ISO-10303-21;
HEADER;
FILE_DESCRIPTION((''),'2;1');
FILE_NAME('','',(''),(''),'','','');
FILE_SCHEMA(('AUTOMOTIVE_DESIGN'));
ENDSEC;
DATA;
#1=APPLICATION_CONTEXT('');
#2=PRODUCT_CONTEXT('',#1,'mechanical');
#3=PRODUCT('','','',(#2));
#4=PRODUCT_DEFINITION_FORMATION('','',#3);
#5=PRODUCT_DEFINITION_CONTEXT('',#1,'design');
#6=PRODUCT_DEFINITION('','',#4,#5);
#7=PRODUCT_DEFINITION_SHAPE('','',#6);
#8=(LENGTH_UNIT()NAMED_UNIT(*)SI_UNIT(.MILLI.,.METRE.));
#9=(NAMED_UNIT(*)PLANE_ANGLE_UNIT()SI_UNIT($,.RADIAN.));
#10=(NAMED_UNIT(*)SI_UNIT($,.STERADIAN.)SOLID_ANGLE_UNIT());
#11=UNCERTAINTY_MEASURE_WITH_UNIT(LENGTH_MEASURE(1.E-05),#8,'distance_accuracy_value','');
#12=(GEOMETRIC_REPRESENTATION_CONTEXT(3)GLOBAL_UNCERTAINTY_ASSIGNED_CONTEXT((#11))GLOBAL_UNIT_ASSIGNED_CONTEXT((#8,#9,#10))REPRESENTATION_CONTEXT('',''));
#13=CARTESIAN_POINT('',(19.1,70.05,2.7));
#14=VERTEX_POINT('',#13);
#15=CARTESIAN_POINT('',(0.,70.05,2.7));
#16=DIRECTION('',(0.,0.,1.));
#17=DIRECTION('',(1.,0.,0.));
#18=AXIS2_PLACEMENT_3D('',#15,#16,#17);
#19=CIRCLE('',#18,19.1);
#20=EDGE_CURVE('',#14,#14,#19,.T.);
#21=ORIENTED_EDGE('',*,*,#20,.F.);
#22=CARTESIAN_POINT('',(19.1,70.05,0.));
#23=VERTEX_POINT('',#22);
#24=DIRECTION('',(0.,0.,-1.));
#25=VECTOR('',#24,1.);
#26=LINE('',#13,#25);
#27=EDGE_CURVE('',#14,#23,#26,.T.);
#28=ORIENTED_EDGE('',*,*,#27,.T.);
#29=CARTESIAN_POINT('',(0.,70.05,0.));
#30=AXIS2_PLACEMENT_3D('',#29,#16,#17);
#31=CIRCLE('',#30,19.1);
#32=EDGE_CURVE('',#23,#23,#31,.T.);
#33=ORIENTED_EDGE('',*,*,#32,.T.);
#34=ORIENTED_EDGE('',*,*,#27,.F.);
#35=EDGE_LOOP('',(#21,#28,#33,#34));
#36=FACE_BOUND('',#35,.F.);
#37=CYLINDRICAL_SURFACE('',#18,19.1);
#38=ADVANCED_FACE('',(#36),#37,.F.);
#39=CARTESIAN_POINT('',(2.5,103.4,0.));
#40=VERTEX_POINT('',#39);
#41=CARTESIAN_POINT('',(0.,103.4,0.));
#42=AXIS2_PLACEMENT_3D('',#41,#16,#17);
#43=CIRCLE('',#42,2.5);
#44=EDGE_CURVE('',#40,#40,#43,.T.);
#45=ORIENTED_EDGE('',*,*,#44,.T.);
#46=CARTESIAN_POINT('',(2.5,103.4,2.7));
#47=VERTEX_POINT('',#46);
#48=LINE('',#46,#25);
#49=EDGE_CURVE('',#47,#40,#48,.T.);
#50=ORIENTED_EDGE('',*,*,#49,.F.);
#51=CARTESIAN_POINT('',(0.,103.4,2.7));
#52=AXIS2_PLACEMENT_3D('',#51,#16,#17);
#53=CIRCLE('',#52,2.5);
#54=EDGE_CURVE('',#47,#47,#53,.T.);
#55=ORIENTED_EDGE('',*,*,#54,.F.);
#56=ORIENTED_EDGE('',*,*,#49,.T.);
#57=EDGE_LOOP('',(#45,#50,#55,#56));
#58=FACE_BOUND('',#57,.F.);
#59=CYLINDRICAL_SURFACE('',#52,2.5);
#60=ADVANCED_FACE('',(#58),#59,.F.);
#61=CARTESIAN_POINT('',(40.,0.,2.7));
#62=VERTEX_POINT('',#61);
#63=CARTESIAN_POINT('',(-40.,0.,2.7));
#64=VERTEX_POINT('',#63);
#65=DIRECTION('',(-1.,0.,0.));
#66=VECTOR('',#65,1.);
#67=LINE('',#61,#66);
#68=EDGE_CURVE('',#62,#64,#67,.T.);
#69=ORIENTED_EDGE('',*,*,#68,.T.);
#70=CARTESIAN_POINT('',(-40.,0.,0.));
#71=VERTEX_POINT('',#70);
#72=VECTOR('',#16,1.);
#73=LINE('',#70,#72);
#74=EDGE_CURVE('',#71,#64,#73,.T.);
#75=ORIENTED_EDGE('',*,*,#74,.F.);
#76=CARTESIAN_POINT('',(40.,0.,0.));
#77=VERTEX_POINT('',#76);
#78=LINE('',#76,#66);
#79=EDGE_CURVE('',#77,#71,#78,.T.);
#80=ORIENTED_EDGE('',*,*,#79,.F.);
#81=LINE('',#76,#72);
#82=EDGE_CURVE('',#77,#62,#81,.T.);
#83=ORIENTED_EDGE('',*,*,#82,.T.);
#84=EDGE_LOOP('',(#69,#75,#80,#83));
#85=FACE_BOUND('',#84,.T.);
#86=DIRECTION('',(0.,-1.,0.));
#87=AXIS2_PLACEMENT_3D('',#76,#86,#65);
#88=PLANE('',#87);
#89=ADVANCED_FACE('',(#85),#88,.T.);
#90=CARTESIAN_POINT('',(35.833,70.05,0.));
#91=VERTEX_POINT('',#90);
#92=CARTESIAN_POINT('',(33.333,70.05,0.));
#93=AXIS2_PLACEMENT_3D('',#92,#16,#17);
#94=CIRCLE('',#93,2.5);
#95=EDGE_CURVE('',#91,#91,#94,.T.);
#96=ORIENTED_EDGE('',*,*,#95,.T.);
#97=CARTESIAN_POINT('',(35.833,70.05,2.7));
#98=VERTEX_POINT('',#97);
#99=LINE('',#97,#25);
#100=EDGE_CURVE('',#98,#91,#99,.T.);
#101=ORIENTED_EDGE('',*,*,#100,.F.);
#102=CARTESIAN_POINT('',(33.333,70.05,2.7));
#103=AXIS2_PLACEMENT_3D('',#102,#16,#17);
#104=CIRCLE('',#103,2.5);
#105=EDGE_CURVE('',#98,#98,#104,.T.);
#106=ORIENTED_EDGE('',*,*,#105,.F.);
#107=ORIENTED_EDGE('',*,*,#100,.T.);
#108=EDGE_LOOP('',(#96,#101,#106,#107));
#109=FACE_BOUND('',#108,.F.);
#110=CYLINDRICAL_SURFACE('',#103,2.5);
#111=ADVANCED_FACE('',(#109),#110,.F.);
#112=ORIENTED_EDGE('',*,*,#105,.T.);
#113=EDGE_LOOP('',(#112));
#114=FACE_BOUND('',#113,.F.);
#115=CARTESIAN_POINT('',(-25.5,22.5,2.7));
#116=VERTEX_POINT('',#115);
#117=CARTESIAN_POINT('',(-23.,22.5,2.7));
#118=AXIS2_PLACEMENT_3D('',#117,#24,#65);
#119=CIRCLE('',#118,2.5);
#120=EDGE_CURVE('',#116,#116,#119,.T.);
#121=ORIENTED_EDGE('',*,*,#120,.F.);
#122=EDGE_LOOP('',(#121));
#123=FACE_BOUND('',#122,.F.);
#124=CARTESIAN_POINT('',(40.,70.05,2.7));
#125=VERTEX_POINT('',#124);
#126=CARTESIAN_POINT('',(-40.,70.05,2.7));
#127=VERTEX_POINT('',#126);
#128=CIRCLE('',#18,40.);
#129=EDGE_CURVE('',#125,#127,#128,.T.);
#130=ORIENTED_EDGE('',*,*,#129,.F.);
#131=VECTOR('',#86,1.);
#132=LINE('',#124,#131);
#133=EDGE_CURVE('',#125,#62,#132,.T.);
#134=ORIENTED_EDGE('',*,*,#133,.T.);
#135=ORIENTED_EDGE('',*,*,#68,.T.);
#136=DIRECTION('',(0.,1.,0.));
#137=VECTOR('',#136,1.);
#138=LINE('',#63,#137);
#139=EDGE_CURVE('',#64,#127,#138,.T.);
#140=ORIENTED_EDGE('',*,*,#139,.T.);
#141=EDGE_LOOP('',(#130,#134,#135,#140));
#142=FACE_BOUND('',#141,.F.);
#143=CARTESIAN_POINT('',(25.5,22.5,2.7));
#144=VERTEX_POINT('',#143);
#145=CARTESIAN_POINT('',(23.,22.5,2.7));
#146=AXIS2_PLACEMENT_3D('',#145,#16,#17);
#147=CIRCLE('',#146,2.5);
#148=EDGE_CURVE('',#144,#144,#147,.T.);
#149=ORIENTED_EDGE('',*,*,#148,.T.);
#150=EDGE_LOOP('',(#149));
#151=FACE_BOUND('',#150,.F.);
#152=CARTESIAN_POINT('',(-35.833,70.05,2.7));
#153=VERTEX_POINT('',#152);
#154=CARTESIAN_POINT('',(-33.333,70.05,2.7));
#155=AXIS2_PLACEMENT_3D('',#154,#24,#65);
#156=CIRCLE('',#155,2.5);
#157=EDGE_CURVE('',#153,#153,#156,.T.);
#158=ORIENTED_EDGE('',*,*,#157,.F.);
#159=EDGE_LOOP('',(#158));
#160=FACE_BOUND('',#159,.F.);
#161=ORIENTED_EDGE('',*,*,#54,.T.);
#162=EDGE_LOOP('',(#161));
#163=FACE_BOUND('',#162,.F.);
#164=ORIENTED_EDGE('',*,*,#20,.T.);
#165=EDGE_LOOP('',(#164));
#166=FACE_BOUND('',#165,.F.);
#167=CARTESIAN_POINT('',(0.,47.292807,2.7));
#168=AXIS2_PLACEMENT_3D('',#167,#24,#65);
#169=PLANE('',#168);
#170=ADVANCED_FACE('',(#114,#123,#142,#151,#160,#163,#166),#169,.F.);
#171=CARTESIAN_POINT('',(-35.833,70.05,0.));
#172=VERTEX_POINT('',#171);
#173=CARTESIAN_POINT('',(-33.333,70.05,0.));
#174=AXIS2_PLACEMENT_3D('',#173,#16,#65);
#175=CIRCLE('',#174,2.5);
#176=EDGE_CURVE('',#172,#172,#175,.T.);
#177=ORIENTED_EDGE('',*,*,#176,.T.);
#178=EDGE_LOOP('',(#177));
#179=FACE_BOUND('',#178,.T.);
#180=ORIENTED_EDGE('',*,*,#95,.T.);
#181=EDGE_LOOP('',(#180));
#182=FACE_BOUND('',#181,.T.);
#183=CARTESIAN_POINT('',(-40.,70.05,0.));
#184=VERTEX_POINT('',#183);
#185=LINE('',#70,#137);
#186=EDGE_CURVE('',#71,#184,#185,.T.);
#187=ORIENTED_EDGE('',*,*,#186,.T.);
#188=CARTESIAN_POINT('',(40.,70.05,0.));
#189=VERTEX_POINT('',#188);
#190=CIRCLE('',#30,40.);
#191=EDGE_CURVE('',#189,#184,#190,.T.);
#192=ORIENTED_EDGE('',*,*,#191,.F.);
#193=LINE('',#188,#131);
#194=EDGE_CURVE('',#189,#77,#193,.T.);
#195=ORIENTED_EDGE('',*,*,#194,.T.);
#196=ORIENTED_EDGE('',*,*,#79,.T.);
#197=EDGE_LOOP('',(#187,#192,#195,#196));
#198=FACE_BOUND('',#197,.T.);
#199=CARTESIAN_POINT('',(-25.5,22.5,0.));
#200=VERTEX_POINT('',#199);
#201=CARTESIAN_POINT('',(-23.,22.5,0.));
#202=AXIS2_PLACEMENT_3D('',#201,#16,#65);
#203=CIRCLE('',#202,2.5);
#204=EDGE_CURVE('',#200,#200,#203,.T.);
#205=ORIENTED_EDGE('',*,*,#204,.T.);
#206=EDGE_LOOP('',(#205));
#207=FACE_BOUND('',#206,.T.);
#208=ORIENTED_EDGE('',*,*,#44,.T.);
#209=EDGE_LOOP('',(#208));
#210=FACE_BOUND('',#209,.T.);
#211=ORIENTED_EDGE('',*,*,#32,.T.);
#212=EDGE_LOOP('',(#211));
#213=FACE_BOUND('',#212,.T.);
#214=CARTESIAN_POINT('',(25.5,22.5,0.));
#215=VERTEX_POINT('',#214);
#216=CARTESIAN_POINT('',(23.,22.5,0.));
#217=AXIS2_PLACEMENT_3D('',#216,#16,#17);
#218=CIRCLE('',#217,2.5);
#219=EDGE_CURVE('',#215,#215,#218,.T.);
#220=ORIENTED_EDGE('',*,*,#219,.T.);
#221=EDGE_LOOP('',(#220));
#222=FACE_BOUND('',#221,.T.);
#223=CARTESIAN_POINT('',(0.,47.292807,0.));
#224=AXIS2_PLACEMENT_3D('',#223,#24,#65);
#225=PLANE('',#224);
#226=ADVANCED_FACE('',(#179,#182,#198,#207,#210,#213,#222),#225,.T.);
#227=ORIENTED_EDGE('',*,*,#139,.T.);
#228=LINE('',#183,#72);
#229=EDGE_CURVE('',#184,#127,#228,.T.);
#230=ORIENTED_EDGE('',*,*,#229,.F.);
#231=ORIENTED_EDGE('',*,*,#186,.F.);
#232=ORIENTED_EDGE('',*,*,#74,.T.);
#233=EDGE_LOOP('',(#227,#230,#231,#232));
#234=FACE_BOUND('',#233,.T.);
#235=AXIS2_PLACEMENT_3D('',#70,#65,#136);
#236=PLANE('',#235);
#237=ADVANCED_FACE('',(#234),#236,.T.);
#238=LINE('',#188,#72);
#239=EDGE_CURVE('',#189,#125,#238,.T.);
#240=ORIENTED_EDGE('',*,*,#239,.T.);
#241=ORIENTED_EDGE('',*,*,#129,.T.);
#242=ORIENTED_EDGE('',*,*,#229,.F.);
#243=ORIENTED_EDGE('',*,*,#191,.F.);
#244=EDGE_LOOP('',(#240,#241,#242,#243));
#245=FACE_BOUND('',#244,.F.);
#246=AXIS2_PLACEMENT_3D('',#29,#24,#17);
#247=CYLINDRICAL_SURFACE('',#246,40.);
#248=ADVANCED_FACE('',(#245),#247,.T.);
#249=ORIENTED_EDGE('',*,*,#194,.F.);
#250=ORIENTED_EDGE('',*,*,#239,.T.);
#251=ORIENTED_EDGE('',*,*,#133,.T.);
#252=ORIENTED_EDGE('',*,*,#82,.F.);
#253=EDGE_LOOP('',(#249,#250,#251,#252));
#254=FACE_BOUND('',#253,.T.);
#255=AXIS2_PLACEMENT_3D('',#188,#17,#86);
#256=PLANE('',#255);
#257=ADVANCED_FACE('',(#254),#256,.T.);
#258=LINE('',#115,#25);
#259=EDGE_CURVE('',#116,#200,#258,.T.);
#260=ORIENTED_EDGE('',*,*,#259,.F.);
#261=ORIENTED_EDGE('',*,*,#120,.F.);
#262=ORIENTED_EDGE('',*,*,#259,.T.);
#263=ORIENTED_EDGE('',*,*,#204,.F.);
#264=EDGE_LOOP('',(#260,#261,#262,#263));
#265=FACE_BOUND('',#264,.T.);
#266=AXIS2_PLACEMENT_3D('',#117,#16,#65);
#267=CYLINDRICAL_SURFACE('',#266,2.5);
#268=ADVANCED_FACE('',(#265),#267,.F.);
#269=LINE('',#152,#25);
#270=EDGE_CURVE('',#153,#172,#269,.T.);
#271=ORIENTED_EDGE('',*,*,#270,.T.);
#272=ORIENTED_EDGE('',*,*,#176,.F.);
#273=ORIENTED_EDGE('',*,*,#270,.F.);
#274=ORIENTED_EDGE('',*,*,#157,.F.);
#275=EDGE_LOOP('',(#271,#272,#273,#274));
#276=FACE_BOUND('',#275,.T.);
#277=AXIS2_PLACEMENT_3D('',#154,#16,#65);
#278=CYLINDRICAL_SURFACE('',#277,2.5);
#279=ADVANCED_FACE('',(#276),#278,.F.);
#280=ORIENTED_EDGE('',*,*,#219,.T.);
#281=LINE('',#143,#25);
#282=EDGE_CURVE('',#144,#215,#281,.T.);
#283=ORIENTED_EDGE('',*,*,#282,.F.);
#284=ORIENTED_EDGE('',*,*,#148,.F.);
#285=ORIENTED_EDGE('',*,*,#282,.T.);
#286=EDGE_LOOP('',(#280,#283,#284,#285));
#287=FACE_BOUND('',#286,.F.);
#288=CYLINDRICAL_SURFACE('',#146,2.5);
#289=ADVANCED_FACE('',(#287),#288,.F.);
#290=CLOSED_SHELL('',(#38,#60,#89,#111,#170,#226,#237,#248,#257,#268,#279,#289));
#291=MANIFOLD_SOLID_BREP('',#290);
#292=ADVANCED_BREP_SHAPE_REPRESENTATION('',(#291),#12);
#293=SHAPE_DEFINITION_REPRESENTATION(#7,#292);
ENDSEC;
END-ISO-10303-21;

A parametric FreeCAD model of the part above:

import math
import FreeCAD as App
import Part
import Sketcher
from FreeCAD import Vector

doc = App.newDocument("Part")
body = doc.addObject("PartDesign::Body", "Body")

sketch1 = body.newObject("Sketcher::SketchObject", "Sketch")
sketch1.AttachmentSupport = (doc.getObject("XY_Plane"), [""])
sketch1.MapMode = "FlatFace"
sketch1.addGeometry(Part.LineSegment(Vector(40, 0, 0), Vector(40, 70, 0)), False)
sketch1.addGeometry(Part.ArcOfCircle(Part.Circle(Vector(0, 70, 0), Vector(0, 0, 1), 40), math.radians(0), math.radians(180)), False)
sketch1.addGeometry(Part.LineSegment(Vector(-40, 70, 0), Vector(-40, 0, 0)), False)
sketch1.addGeometry(Part.LineSegment(Vector(-40, 0, 0), Vector(40, 0, 0)), False)
sketch1.addConstraint(Sketcher.Constraint("Tangent", 0, 2, 1, 1))
sketch1.addConstraint(Sketcher.Constraint("Tangent", 1, 2, 2, 1))
sketch1.addConstraint(Sketcher.Constraint("Coincident", 2, 2, 3, 1))
sketch1.addConstraint(Sketcher.Constraint("Coincident", 3, 2, 0, 1))
sketch1.addConstraint(Sketcher.Constraint("Vertical", 0))
sketch1.addConstraint(Sketcher.Constraint("Vertical", 2))
sketch1.addConstraint(Sketcher.Constraint("Horizontal", 3))
sketch1.addConstraint(Sketcher.Constraint("Symmetric", 2, 2, 3, 2, -1, 1))
sketch1.addConstraint(Sketcher.Constraint("Radius", 1, 40.0))
sketch1.addConstraint(Sketcher.Constraint("DistanceY", 0, 1, 0, 2, 70.05))
pad1 = body.newObject("PartDesign::Pad", "Pad")
pad1.Profile = sketch1
pad1.Length = 2.7

sketch2 = body.newObject("Sketcher::SketchObject", "Sketch001")
sketch2.AttachmentSupport = (doc.getObject("XY_Plane"), [""])
sketch2.MapMode = "FlatFace"
sketch2.AttachmentOffset = App.Placement(Vector(0, 0, 2.7), App.Rotation())
sketch2.addGeometry(Part.Circle(Vector(33.3, 70, 0), Vector(0, 0, 1), 2.5), False)
sketch2.addGeometry(Part.Circle(Vector(23, 22.5, 0), Vector(0, 0, 1), 2.5), False)
sketch2.addConstraint(Sketcher.Constraint("Equal", 0, 1))
sketch2.addConstraint(Sketcher.Constraint("Diameter", 0, 5.0))
sketch2.addConstraint(Sketcher.Constraint("DistanceX", -1, 1, 1, 3, 23.0))
sketch2.addConstraint(Sketcher.Constraint("DistanceY", -1, 1, 1, 3, 22.5))
sketch2.addConstraint(Sketcher.Constraint("DistanceY", -1, 1, 0, 3, 70.05))
sketch2.addConstraint(Sketcher.Constraint("DistanceX", -1, 1, 0, 3, 33.333))
pocket1 = body.newObject("PartDesign::Pocket", "Pocket")
pocket1.Profile = sketch2
pocket1.Length = 5
doc.recompute()

mirrored = body.newObject("PartDesign::Mirrored", "Mirrored")
mirrored.Originals = [pocket1]
mirrored.MirrorPlane = (doc.getObject("YZ_Plane"), [""])
body.Tip = mirrored

sketch3 = body.newObject("Sketcher::SketchObject", "Sketch002")
sketch3.AttachmentSupport = (doc.getObject("XY_Plane"), [""])
sketch3.MapMode = "FlatFace"
sketch3.AttachmentOffset = App.Placement(Vector(0, 0, 2.7), App.Rotation())
sketch3.addGeometry(Part.Circle(Vector(0, 103.4, 0), Vector(0, 0, 1), 2.5), False)
sketch3.addConstraint(Sketcher.Constraint("PointOnObject", 0, 3, -2))
sketch3.addConstraint(Sketcher.Constraint("Diameter", 0, 5.0))
sketch3.addConstraint(Sketcher.Constraint("DistanceY", -1, 1, 0, 3, 103.4))
pocket2 = body.newObject("PartDesign::Pocket", "Pocket001")
pocket2.Profile = sketch3
pocket2.Length = 5

sketch4 = body.newObject("Sketcher::SketchObject", "Sketch003")
sketch4.AttachmentSupport = (doc.getObject("XY_Plane"), [""])
sketch4.MapMode = "FlatFace"
sketch4.AttachmentOffset = App.Placement(Vector(0, 0, 2.7), App.Rotation())
sketch4.addGeometry(Part.Circle(Vector(0, 70, 0), Vector(0, 0, 1), 19), False)
sketch4.addConstraint(Sketcher.Constraint("PointOnObject", 0, 3, -2))
sketch4.addConstraint(Sketcher.Constraint("Diameter", 0, 38.2))
sketch4.addConstraint(Sketcher.Constraint("DistanceY", -1, 1, 0, 3, 70.05))
pocket3 = body.newObject("PartDesign::Pocket", "Pocket002")
pocket3.Profile = sketch4
pocket3.Length = 5

doc.recompute()
